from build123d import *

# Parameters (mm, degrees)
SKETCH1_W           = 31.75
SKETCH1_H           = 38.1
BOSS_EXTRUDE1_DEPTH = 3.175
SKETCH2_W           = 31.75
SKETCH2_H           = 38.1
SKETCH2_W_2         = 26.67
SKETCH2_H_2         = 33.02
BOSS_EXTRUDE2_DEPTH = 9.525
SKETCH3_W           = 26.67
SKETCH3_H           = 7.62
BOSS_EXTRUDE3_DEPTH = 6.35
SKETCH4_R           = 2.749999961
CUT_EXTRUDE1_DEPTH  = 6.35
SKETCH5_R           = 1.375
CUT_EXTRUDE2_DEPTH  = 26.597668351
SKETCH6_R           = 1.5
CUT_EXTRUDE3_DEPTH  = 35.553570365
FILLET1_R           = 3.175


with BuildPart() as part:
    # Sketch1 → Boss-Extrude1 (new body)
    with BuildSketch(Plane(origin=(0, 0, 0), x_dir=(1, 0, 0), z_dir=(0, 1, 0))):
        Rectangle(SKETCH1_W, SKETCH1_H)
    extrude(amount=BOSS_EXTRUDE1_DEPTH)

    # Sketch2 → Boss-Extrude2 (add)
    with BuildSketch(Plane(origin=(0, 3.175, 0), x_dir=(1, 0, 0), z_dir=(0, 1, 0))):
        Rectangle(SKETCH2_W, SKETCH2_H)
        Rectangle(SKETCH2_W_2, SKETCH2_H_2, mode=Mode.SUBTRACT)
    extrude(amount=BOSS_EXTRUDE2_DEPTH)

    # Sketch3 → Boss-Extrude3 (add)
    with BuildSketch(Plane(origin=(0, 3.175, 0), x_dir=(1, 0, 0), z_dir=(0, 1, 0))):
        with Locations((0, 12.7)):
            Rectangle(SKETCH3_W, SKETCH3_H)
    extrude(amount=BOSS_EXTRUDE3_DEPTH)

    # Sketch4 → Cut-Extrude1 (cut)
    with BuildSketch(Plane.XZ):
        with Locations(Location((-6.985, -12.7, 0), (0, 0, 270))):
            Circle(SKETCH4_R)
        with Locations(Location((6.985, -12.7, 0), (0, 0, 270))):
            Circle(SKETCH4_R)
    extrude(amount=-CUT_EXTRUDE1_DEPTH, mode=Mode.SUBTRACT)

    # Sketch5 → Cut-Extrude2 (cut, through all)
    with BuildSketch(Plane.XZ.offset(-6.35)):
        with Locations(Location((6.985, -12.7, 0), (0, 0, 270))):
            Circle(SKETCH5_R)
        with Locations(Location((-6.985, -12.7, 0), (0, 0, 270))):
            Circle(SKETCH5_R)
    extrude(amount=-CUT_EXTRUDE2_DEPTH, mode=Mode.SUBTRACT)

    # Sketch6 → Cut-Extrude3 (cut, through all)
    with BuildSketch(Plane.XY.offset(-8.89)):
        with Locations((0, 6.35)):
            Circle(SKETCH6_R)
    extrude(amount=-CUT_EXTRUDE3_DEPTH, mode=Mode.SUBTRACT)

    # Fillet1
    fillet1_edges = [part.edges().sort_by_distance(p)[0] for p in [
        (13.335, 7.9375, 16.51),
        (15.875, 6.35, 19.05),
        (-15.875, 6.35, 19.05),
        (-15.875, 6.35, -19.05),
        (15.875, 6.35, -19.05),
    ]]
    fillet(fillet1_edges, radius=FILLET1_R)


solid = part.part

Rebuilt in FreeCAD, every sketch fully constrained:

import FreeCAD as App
import Part
import Sketcher
from FreeCAD import Vector
Q = App.Units.Quantity


def edges_at(feature, points):
    """Names of the edges that pass closest to the given points."""
    edges = feature.Shape.Edges
    near = lambda p: min(range(len(edges)), key=lambda i: edges[i].distToShape(Part.Vertex(*p))[0])
    return sorted({f"Edge{near(p) + 1}" for p in points})


def add_polygon(sketch, points):
    """Adds a closed chain of lines whose ends are joined by coincident constraints."""
    first, n = sketch.GeometryCount, len(points)
    for a, b in zip(points, points[1:] + points[:1]):
        sketch.addGeometry(Part.LineSegment(App.Vector(*a, 0), App.Vector(*b, 0)), False)
    for i in range(n):
        sketch.addConstraint(Sketcher.Constraint("Coincident", first + i, 2, first + (i + 1) % n, 1))

doc = App.newDocument("Part")
body = doc.addObject("PartDesign::Body", "Body")

# Sketch on XZ plane
sketch1 = body.newObject("Sketcher::SketchObject", "Sketch")
sketch1.AttachmentSupport = (doc.getObject("XZ_Plane"), [""])
sketch1.MapMode = "FlatFace"
add_polygon(sketch1, [(-16, -19), (-16, 19), (16, 19), (16, -19)])  # lines 0-3
sketch1.addConstraint([
    Sketcher.Constraint("Vertical", 0),
    Sketcher.Constraint("Horizontal", 1),
    Sketcher.Constraint("Vertical", 2),
    Sketcher.Constraint("Horizontal", 3),
    Sketcher.Constraint("Symmetric", 0, 2, 2, 2, -1, 1),
    Sketcher.Constraint("DistanceY", 0, 1, 0, 2, Q("1.5 in")),
    Sketcher.Constraint("DistanceX", 1, 1, 1, 2, Q("1.25 in")),
])
pad1 = body.newObject("PartDesign::Pad", "Pad")
pad1.Profile = sketch1
pad1.Length = Q("0.125 in")
pad1.Reversed = True

# Sketch on XZ plane
sketch2 = body.newObject("Sketcher::SketchObject", "Sketch001")
sketch2.AttachmentSupport = (doc.getObject("XZ_Plane"), [""])
sketch2.MapMode = "FlatFace"
sketch2.AttachmentOffset = App.Placement(Vector(0, 0, -0.125 * 25.4), App.Rotation())
add_polygon(sketch2, [(-16, -19), (-16, 19), (16, 19), (16, -19)])  # lines 0-3
add_polygon(sketch2, [(13, 17), (-13, 17), (-13, -17), (13, -17)])  # lines 4-7
sketch2.addConstraint([
    Sketcher.Constraint("Vertical", 0),
    Sketcher.Constraint("Horizontal", 1),
    Sketcher.Constraint("Vertical", 2),
    Sketcher.Constraint("Horizontal", 3),
    Sketcher.Constraint("Horizontal", 4),
    Sketcher.Constraint("Vertical", 5),
    Sketcher.Constraint("Horizontal", 6),
    Sketcher.Constraint("Vertical", 7),
    Sketcher.Constraint("Symmetric", 0, 2, 2, 2, -1, 1),
    Sketcher.Constraint("Symmetric", 4, 2, 6, 2, -1, 1),
    Sketcher.Constraint("DistanceY", 0, 1, 0, 2, Q("1.5 in")),
    Sketcher.Constraint("DistanceY", 5, 2, 5, 1, Q("1.3 in")),
    Sketcher.Constraint("DistanceX", 1, 1, 1, 2, Q("1.25 in")),
    Sketcher.Constraint("DistanceX", 4, 2, 4, 1, Q("1.05 in")),
])
pad2 = body.newObject("PartDesign::Pad", "Pad001")
pad2.Profile = sketch2
pad2.Length = Q("0.375 in")
pad2.Reversed = True

# Sketch on XZ plane
sketch3 = body.newObject("Sketcher::SketchObject", "Sketch002")
sketch3.AttachmentSupport = (doc.getObject("XZ_Plane"), [""])
sketch3.MapMode = "FlatFace"
sketch3.AttachmentOffset = App.Placement(Vector(0, 0, -0.125 * 25.4), App.Rotation())
add_polygon(sketch3, [(-13, -17), (-13, -9), (13, -9), (13, -17)])  # lines 0-3
sketch3.addConstraint([
    Sketcher.Constraint("Vertical", 0),
    Sketcher.Constraint("Horizontal", 1),
    Sketcher.Constraint("Vertical", 2),
    Sketcher.Constraint("Horizontal", 3),
    Sketcher.Constraint("DistanceY", 0, 1, 0, 2, Q("0.3 in")),
    Sketcher.Constraint("DistanceX", 1, 1, 1, 2, Q("1.05 in")),
    Sketcher.Constraint("DistanceY", 0, 2, -1, 1, Q("0.35 in")),
    Sketcher.Constraint("DistanceX", 0, 2, -1, 1, Q("0.525 in")),
])
pad3 = body.newObject("PartDesign::Pad", "Pad002")
pad3.Profile = sketch3
pad3.Length = Q("0.25 in")
pad3.Reversed = True

# Sketch on XZ plane
sketch4 = body.newObject("Sketcher::SketchObject", "Sketch003")
sketch4.AttachmentSupport = (doc.getObject("XZ_Plane"), [""])
sketch4.MapMode = "FlatFace"
sketch4.addGeometry([
    Part.Circle(Vector(-7, -12.7, 0), Vector(0, 0, 1), 2.7),
    Part.Circle(Vector(7, -12.7, 0), Vector(0, 0, 1), 2.7),
], False)
sketch4.addConstraint([
    Sketcher.Constraint("Equal", 0, 1),
    Sketcher.Constraint("Symmetric", 0, 3, 1, 3, -2),
    Sketcher.Constraint("DistanceY", 0, 3, -1, 1, Q("0.5 in")),
    Sketcher.Constraint("Diameter", 0, 5.5),
    Sketcher.Constraint("DistanceX", 0, 3, 1, 3, Q("0.55 in")),
])
pocket1 = body.newObject("PartDesign::Pocket", "Pocket")
pocket1.Profile = sketch4
pocket1.Length = Q("0.25 in")

# Sketch on XZ plane
sketch5 = body.newObject("Sketcher::SketchObject", "Sketch004")
sketch5.AttachmentSupport = (doc.getObject("XZ_Plane"), [""])
sketch5.MapMode = "FlatFace"
sketch5.AttachmentOffset = App.Placement(Vector(0, 0, -0.25 * 25.4), App.Rotation())
sketch5.addGeometry([
    Part.Circle(Vector(7, -12.7, 0), Vector(0, 0, 1), 1.4),
    Part.Circle(Vector(-7, -12.7, 0), Vector(0, 0, 1), 1.4),
], False)
sketch5.addConstraint([
    Sketcher.Constraint("Equal", 0, 1),
    Sketcher.Constraint("Symmetric", 0, 3, 1, 3, -2),
    Sketcher.Constraint("DistanceY", 0, 3, -1, 1, Q("0.5 in")),
    Sketcher.Constraint("Diameter", 0, 2.75),
    Sketcher.Constraint("DistanceX", 1, 3, 0, 3, Q("0.55 in")),
])
pocket2 = body.newObject("PartDesign::Pocket", "Pocket001")
pocket2.Profile = sketch5
pocket2.Type = "ThroughAll"

# Sketch on XY plane
sketch6 = body.newObject("Sketcher::SketchObject", "Sketch005")
sketch6.AttachmentSupport = (doc.getObject("XY_Plane"), [""])
sketch6.MapMode = "FlatFace"
sketch6.AttachmentOffset = App.Placement(Vector(0, 0, -0.35 * 25.4), App.Rotation())
sketch6.addGeometry(Part.Circle(Vector(0, 6.3, 0), Vector(0, 0, 1), 1.5), False)
sketch6.addConstraint([
    Sketcher.Constraint("PointOnObject", 0, 3, -2),
    Sketcher.Constraint("Diameter", 0, 3.0),
    Sketcher.Constraint("DistanceY", -1, 1, 0, 3, Q("0.25 in")),
])
pocket3 = body.newObject("PartDesign::Pocket", "Pocket002")
pocket3.Profile = sketch6
pocket3.Type = "ThroughAll"
doc.recompute()

fillet = body.newObject("PartDesign::Fillet", "Fillet")
fillet.Base = (pocket3, edges_at(pocket3, [
    (13.335, 7.938, 16.51),
    (15.875, 6.35, 19.05),
    (-15.875, 6.35, 19.05),
    (-15.875, 6.35, -19.05),
    (15.875, 6.35, -19.05),
]))
fillet.Radius = Q("0.125 in")

doc.recompute()
